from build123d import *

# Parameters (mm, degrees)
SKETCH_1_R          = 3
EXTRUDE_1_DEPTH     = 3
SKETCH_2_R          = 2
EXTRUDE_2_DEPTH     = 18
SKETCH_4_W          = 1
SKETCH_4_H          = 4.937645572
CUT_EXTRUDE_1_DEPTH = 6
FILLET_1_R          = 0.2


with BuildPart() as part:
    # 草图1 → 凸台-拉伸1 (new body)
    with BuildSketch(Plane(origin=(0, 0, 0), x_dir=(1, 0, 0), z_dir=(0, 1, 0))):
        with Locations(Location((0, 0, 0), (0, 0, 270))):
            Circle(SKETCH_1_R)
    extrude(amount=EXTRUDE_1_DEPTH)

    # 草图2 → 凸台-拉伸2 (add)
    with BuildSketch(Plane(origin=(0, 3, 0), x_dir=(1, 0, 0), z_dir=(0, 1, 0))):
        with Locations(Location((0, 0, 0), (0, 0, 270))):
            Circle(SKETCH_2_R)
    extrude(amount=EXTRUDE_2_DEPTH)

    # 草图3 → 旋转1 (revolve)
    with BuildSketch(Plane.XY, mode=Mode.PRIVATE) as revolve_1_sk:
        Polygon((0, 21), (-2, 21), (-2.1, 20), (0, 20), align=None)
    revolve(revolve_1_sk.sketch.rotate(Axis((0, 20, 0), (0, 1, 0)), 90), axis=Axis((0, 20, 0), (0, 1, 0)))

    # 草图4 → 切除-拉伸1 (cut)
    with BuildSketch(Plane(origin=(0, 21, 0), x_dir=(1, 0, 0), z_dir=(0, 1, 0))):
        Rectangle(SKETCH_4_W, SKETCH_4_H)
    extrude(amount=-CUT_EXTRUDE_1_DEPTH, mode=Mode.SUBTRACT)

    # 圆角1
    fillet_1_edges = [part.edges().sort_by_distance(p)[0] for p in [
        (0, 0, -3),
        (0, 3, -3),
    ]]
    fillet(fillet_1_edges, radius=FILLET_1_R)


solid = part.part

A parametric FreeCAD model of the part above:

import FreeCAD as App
import Part
import Sketcher

V = App.Vector
Q = App.Units.Quantity


def edges_at(feature, points):
    """Names of the edges that pass closest to the given points."""
    edges = feature.Shape.Edges
    near = lambda p: min(range(len(edges)), key=lambda i: edges[i].distToShape(Part.Vertex(*p))[0])
    return sorted({f"Edge{near(p) + 1}" for p in points})

doc = App.newDocument("Part")
body = doc.addObject("PartDesign::Body", "Body")

# Sketch on XZ plane
sketch1 = doc.addObject("Sketcher::SketchObject", "Sketch")
body.addObject(sketch1)
sketch1.AttachmentSupport = (doc.XZ_Plane, [""])
sketch1.MapMode = "FlatFace"
sketch1.addGeometry(Part.Circle(V(0, 0, 0), V(0, 0, 1), 3), False)
sketch1.addConstraint(Sketcher.Constraint("Coincident", 0, 3, -1, 1))
sketch1.addConstraint(Sketcher.Constraint("Diameter", 0, Q("6 mm")))
pad1 = doc.addObject("PartDesign::Pad", "Pad")
body.addObject(pad1)
pad1.Profile = sketch1
pad1.Length = 3
pad1.Reversed = True

# Sketch on XZ plane
sketch2 = doc.addObject("Sketcher::SketchObject", "Sketch001")
body.addObject(sketch2)
sketch2.AttachmentSupport = (doc.XZ_Plane, [""])
sketch2.MapMode = "FlatFace"
sketch2.AttachmentOffset = App.Placement(V(0, 0, -3), App.Rotation())
sketch2.addGeometry(Part.Circle(V(0, 0, 0), V(0, 0, 1), 2), False)
sketch2.addConstraint(Sketcher.Constraint("Coincident", 0, 3, -1, 1))
sketch2.addConstraint(Sketcher.Constraint("Diameter", 0, Q("4 mm")))
pad2 = doc.addObject("PartDesign::Pad", "Pad001")
body.addObject(pad2)
pad2.Profile = sketch2
pad2.Length = 18
pad2.Reversed = True

# Sketch on XY plane
sketch3 = doc.addObject("Sketcher::SketchObject", "Sketch002")
body.addObject(sketch3)
sketch3.AttachmentSupport = (doc.XY_Plane, [""])
sketch3.MapMode = "FlatFace"
sketch3.addGeometry(Part.LineSegment(V(0, 21, 0), V(-2, 21, 0)), False)
sketch3.addGeometry(Part.LineSegment(V(-2, 21, 0), V(-2.1, 20, 0)), False)
sketch3.addGeometry(Part.LineSegment(V(-2.1, 20, 0), V(0, 20, 0)), False)
sketch3.addGeometry(Part.LineSegment(V(0, 20, 0), V(0, 21, 0)), False)
sketch3.addConstraint(Sketcher.Constraint("Coincident", 0, 2, 1, 1))
sketch3.addConstraint(Sketcher.Constraint("Coincident", 1, 2, 2, 1))
sketch3.addConstraint(Sketcher.Constraint("Coincident", 2, 2, 3, 1))
sketch3.addConstraint(Sketcher.Constraint("Coincident", 3, 2, 0, 1))
sketch3.addConstraint(Sketcher.Constraint("Horizontal", 0))
sketch3.addConstraint(Sketcher.Constraint("Horizontal", 2))
sketch3.addConstraint(Sketcher.Constraint("Vertical", 3))
sketch3.addConstraint(Sketcher.Constraint("PointOnObject", 2, 2, -2))
sketch3.addConstraint(Sketcher.Constraint("DistanceX", 0, 2, 0, 1, Q("2 mm")))
sketch3.addConstraint(Sketcher.Constraint("DistanceY", 3, 1, 3, 2, Q("1 mm")))
sketch3.addConstraint(Sketcher.Constraint("DistanceX", 2, 1, 2, 2, Q("2.1 mm")))
sketch3.addConstraint(Sketcher.Constraint("DistanceY", -1, 1, 0, 2, Q("21 mm")))
revolution = doc.addObject("PartDesign::Revolution", "Revolution")
body.addObject(revolution)
revolution.Profile = sketch3
revolution.ReferenceAxis = (sketch3, ["V_Axis"])
revolution.Angle = 360

# Sketch on XZ plane
sketch4 = doc.addObject("Sketcher::SketchObject", "Sketch003")
body.addObject(sketch4)
sketch4.AttachmentSupport = (doc.XZ_Plane, [""])
sketch4.MapMode = "FlatFace"
sketch4.AttachmentOffset = App.Placement(V(0, 0, -21), App.Rotation())
sketch4.addGeometry(Part.LineSegment(V(-0.5, -2.468823, 0), V(-0.5, 2.468823, 0)), False)
sketch4.addGeometry(Part.LineSegment(V(-0.5, 2.468823, 0), V(0.5, 2.468823, 0)), False)
sketch4.addGeometry(Part.LineSegment(V(0.5, 2.468823, 0), V(0.5, -2.468823, 0)), False)
sketch4.addGeometry(Part.LineSegment(V(0.5, -2.468823, 0), V(-0.5, -2.468823, 0)), False)
sketch4.addConstraint(Sketcher.Constraint("Coincident", 0, 2, 1, 1))
sketch4.addConstraint(Sketcher.Constraint("Coincident", 1, 2, 2, 1))
sketch4.addConstraint(Sketcher.Constraint("Coincident", 2, 2, 3, 1))
sketch4.addConstraint(Sketcher.Constraint("Coincident", 3, 2, 0, 1))
sketch4.addConstraint(Sketcher.Constraint("Vertical", 0))
sketch4.addConstraint(Sketcher.Constraint("Horizontal", 1))
sketch4.addConstraint(Sketcher.Constraint("Vertical", 2))
sketch4.addConstraint(Sketcher.Constraint("Horizontal", 3))
sketch4.addConstraint(Sketcher.Constraint("Symmetric", 0, 2, 2, 2, -1, 1))
sketch4.addConstraint(Sketcher.Constraint("DistanceX", 1, 1, 1, 2, Q("1 mm")))
sketch4.addConstraint(Sketcher.Constraint("DistanceY", 0, 1, 0, 2, Q("4.937646 mm")))
pocket1 = doc.addObject("PartDesign::Pocket", "Pocket")
body.addObject(pocket1)
pocket1.Profile = sketch4
pocket1.Length = 6
pocket1.Reversed = True
doc.recompute()

fillet = doc.addObject("PartDesign::Fillet", "Fillet")
body.addObject(fillet)
fillet.Base = (pocket1, edges_at(pocket1, [(0, 0, -3), (0, 3, -3)]))
fillet.Radius = 0.2

doc.recompute()
